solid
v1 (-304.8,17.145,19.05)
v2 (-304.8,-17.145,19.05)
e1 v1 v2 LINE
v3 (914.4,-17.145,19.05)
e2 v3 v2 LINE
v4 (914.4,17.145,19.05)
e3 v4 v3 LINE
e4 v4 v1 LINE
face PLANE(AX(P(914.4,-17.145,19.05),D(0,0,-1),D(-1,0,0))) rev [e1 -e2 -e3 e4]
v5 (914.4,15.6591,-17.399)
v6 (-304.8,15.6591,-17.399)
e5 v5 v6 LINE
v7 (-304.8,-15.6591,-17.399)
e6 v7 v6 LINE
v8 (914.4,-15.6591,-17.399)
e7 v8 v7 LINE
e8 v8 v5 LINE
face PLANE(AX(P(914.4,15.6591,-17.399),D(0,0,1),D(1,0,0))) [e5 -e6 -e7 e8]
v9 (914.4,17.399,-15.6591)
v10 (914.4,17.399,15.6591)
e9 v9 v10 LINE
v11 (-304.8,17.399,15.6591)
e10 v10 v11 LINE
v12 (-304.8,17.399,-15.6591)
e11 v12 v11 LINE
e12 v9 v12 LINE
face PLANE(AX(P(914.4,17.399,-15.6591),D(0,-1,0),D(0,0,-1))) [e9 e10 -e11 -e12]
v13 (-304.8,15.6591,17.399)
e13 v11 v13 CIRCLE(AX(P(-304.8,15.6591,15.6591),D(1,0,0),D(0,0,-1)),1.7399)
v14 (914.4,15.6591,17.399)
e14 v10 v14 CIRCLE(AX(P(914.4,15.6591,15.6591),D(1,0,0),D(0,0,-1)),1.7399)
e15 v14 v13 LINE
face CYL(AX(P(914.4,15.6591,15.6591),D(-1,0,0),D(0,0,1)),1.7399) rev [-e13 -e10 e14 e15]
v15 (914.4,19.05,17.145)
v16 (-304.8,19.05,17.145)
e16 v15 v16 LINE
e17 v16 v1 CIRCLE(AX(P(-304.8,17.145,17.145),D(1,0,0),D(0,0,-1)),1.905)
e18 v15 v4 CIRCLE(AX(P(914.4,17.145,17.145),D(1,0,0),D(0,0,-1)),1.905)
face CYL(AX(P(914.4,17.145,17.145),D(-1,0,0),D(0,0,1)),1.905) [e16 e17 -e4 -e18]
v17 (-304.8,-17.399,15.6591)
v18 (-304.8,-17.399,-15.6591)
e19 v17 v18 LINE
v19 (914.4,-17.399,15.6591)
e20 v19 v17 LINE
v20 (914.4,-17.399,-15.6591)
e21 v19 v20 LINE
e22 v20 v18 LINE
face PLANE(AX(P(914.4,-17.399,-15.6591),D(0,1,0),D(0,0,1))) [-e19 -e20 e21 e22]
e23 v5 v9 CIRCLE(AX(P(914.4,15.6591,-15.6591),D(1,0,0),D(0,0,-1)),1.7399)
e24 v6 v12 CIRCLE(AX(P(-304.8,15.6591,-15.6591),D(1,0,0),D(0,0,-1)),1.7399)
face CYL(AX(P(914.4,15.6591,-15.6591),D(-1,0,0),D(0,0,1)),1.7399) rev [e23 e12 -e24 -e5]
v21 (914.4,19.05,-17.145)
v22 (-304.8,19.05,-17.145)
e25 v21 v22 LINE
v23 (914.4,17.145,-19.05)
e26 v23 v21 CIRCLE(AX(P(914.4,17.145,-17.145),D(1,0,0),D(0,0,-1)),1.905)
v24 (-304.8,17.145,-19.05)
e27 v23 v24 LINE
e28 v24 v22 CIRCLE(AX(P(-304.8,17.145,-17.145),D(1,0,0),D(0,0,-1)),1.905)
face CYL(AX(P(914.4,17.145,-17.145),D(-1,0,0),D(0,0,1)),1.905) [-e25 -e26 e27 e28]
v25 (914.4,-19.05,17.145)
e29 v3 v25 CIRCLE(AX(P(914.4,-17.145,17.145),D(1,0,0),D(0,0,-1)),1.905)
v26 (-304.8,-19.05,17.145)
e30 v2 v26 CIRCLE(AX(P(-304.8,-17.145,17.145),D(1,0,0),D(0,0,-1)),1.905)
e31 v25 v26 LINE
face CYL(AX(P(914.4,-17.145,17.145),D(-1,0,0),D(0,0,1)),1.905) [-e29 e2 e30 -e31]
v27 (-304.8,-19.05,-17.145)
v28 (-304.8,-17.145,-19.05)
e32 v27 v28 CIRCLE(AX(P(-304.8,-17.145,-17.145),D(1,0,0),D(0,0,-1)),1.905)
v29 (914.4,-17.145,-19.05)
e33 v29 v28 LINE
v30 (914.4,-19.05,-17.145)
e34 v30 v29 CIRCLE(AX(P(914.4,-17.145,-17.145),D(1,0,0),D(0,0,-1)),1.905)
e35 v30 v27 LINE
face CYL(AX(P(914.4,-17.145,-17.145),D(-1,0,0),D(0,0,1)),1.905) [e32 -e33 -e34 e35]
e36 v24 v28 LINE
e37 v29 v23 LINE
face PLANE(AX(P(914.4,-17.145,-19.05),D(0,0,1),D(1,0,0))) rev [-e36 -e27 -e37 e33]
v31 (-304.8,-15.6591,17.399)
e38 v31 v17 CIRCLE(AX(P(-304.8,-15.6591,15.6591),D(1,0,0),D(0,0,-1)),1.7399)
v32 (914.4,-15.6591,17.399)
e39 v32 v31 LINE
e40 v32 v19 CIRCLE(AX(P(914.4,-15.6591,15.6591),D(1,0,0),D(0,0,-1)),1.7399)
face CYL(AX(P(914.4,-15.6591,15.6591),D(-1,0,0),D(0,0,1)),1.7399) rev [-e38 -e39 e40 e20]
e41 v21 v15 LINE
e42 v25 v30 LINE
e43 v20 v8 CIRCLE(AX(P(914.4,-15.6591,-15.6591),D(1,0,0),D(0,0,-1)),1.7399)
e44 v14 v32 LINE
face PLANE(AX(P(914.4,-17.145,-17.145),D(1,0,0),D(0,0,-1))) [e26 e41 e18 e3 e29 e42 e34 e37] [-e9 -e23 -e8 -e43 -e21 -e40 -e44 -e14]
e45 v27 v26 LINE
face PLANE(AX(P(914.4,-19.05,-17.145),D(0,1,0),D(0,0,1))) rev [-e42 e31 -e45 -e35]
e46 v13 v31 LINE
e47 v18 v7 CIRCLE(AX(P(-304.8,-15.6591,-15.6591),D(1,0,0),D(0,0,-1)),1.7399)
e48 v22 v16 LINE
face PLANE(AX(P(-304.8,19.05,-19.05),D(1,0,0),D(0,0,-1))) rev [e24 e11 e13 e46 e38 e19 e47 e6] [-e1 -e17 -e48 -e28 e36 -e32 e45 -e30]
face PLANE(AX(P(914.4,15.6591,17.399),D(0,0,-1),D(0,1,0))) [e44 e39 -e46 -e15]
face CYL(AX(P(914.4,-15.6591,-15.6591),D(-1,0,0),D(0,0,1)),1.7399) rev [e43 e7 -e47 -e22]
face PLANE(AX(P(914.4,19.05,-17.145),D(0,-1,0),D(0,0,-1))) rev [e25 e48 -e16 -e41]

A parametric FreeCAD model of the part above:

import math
import FreeCAD as App
import Part
import Sketcher

V = App.Vector
Q = App.Units.Quantity

doc = App.newDocument("Part")
body = doc.addObject("PartDesign::Body", "Body")

# Sketch on YZ plane
sketch1 = body.newObject("Sketcher::SketchObject", "Sketch")
sketch1.AttachmentSupport = (doc.getObject("YZ_Plane"), [""])
sketch1.MapMode = "FlatFace"
sketch1.addGeometry([
    Part.LineSegment(V(-17.145, -19.05, 0), V(17.145, -19.05, 0)),  # 0
    Part.ArcOfCircle(Part.Circle(V(17.145, -17.145, 0), V(0, 0, 1), 1.905), math.radians(-90), math.radians(0)),  # 1
    Part.LineSegment(V(19.05, -17.145, 0), V(19.05, 17.145, 0)),  # 2
    Part.ArcOfCircle(Part.Circle(V(17.145, 17.145, 0), V(0, 0, 1), 1.905), math.radians(0), math.radians(90)),  # 3
    Part.LineSegment(V(17.145, 19.05, 0), V(-17.145, 19.05, 0)),  # 4
    Part.ArcOfCircle(Part.Circle(V(-17.145, 17.145, 0), V(0, 0, 1), 1.905), math.radians(90), math.radians(180)),  # 5
    Part.LineSegment(V(-19.05, 17.145, 0), V(-19.05, -17.145, 0)),  # 6
    Part.ArcOfCircle(Part.Circle(V(-17.145, -17.145, 0), V(0, 0, 1), 1.905), math.radians(-180), math.radians(-90)),  # 7
    Part.ArcOfCircle(Part.Circle(V(15.6591, -15.6591, 0), V(0, 0, 1), 1.7399), math.radians(-90), math.radians(0)),  # 8
    Part.LineSegment(V(15.6591, -17.399, 0), V(-15.6591, -17.399, 0)),  # 9
    Part.ArcOfCircle(Part.Circle(V(-15.6591, -15.6591, 0), V(0, 0, 1), 1.7399), math.radians(180), math.radians(270)),  # 10
    Part.LineSegment(V(-17.399, -15.6591, 0), V(-17.399, 15.6591, 0)),  # 11
    Part.ArcOfCircle(Part.Circle(V(-15.6591, 15.6591, 0), V(0, 0, 1), 1.7399), math.radians(90), math.radians(180)),  # 12
    Part.LineSegment(V(-15.6591, 17.399, 0), V(15.6591, 17.399, 0)),  # 13
    Part.ArcOfCircle(Part.Circle(V(15.6591, 15.6591, 0), V(0, 0, 1), 1.7399), math.radians(0), math.radians(90)),  # 14
    Part.LineSegment(V(17.399, 15.6591, 0), V(17.399, -15.6591, 0)),  # 15
], False)
sketch1.addConstraint([
    Sketcher.Constraint("Tangent", 0, 2, 1, 1),
    Sketcher.Constraint("Tangent", 1, 2, 2, 1),
    Sketcher.Constraint("Tangent", 2, 2, 3, 1),
    Sketcher.Constraint("Tangent", 3, 2, 4, 1),
    Sketcher.Constraint("Tangent", 4, 2, 5, 1),
    Sketcher.Constraint("Tangent", 5, 2, 6, 1),
    Sketcher.Constraint("Tangent", 6, 2, 7, 1),
    Sketcher.Constraint("Tangent", 7, 2, 0, 1),
    Sketcher.Constraint("Tangent", 8, 1, 9, 1),
    Sketcher.Constraint("Tangent", 9, 2, 10, 2),
    Sketcher.Constraint("Tangent", 10, 1, 11, 1),
    Sketcher.Constraint("Tangent", 11, 2, 12, 2),
    Sketcher.Constraint("Tangent", 12, 1, 13, 1),
    Sketcher.Constraint("Tangent", 13, 2, 14, 2),
    Sketcher.Constraint("Tangent", 14, 1, 15, 1),
    Sketcher.Constraint("Tangent", 15, 2, 8, 2),
    Sketcher.Constraint("Horizontal", 0),
    Sketcher.Constraint("Vertical", 2),
    Sketcher.Constraint("Horizontal", 4),
    Sketcher.Constraint("Vertical", 6),
    Sketcher.Constraint("Horizontal", 9),
    Sketcher.Constraint("Vertical", 11),
    Sketcher.Constraint("Horizontal", 13),
    Sketcher.Constraint("Vertical", 15),
    Sketcher.Constraint("Equal", 1, 3),
    Sketcher.Constraint("Equal", 3, 5),
    Sketcher.Constraint("Equal", 5, 7),
    Sketcher.Constraint("Equal", 8, 10),
    Sketcher.Constraint("Equal", 10, 12),
    Sketcher.Constraint("Equal", 12, 14),
    Sketcher.Constraint("Symmetric", 1, 3, 5, 3, -1, 1),
    Sketcher.Constraint("Symmetric", 8, 3, 12, 3, -1, 1),
    Sketcher.Constraint("Equal", 4, 2),
    Sketcher.Constraint("Equal", 13, 11),
    Sketcher.Constraint("Radius", 1, Q("0.075 in")),
    Sketcher.Constraint("DistanceX", 0, 1, 0, 2, Q("1.35 in")),
    Sketcher.Constraint("Radius", 8, Q("0.0685 in")),
    Sketcher.Constraint("DistanceX", 9, 2, 9, 1, Q("1.233 in")),
])
pad1 = body.newObject("PartDesign::Pad", "Pad")
pad1.Profile = sketch1
pad1.Type = "TwoLengths"
pad1.Length = Q("36 in")
pad1.Length2 = Q("36 in")

# Sketch on XZ plane
sketch2 = body.newObject("Sketcher::SketchObject", "Sketch001")
sketch2.AttachmentSupport = (doc.getObject("XZ_Plane"), [""])
sketch2.MapMode = "FlatFace"
sketch2.AttachmentOffset = App.Placement(V(0, 0, 0.75 * 25.4), App.Rotation())
sketch2.addGeometry([
    Part.LineSegment(V(-914.4, 19.05, 0), V(-914.4, -19.05, 0)),
    Part.LineSegment(V(-914.4, -19.05, 0), V(-304.8, -19.05, 0)),
    Part.LineSegment(V(-304.8, -19.05, 0), V(-304.8, 19.05, 0)),
    Part.LineSegment(V(-304.8, 19.05, 0), V(-914.4, 19.05, 0)),
], False)
sketch2.addConstraint([
    Sketcher.Constraint("Coincident", 0, 2, 1, 1),
    Sketcher.Constraint("Coincident", 1, 2, 2, 1),
    Sketcher.Constraint("Coincident", 2, 2, 3, 1),
    Sketcher.Constraint("Coincident", 3, 2, 0, 1),
    Sketcher.Constraint("Vertical", 0),
    Sketcher.Constraint("Horizontal", 1),
    Sketcher.Constraint("Vertical", 2),
    Sketcher.Constraint("Horizontal", 3),
    Sketcher.Constraint("DistanceX", 1, 1, 1, 2, Q("24 in")),
    Sketcher.Constraint("DistanceY", 0, 2, 0, 1, Q("1.5 in")),
    Sketcher.Constraint("DistanceX", 0, 2, -1, 1, Q("36 in")),
    Sketcher.Constraint("DistanceY", 0, 2, -1, 1, Q("0.75 in")),
])
pocket1 = body.newObject("PartDesign::Pocket", "Pocket")
pocket1.Profile = sketch2
pocket1.Type = "ThroughAll"

doc.recompute()
